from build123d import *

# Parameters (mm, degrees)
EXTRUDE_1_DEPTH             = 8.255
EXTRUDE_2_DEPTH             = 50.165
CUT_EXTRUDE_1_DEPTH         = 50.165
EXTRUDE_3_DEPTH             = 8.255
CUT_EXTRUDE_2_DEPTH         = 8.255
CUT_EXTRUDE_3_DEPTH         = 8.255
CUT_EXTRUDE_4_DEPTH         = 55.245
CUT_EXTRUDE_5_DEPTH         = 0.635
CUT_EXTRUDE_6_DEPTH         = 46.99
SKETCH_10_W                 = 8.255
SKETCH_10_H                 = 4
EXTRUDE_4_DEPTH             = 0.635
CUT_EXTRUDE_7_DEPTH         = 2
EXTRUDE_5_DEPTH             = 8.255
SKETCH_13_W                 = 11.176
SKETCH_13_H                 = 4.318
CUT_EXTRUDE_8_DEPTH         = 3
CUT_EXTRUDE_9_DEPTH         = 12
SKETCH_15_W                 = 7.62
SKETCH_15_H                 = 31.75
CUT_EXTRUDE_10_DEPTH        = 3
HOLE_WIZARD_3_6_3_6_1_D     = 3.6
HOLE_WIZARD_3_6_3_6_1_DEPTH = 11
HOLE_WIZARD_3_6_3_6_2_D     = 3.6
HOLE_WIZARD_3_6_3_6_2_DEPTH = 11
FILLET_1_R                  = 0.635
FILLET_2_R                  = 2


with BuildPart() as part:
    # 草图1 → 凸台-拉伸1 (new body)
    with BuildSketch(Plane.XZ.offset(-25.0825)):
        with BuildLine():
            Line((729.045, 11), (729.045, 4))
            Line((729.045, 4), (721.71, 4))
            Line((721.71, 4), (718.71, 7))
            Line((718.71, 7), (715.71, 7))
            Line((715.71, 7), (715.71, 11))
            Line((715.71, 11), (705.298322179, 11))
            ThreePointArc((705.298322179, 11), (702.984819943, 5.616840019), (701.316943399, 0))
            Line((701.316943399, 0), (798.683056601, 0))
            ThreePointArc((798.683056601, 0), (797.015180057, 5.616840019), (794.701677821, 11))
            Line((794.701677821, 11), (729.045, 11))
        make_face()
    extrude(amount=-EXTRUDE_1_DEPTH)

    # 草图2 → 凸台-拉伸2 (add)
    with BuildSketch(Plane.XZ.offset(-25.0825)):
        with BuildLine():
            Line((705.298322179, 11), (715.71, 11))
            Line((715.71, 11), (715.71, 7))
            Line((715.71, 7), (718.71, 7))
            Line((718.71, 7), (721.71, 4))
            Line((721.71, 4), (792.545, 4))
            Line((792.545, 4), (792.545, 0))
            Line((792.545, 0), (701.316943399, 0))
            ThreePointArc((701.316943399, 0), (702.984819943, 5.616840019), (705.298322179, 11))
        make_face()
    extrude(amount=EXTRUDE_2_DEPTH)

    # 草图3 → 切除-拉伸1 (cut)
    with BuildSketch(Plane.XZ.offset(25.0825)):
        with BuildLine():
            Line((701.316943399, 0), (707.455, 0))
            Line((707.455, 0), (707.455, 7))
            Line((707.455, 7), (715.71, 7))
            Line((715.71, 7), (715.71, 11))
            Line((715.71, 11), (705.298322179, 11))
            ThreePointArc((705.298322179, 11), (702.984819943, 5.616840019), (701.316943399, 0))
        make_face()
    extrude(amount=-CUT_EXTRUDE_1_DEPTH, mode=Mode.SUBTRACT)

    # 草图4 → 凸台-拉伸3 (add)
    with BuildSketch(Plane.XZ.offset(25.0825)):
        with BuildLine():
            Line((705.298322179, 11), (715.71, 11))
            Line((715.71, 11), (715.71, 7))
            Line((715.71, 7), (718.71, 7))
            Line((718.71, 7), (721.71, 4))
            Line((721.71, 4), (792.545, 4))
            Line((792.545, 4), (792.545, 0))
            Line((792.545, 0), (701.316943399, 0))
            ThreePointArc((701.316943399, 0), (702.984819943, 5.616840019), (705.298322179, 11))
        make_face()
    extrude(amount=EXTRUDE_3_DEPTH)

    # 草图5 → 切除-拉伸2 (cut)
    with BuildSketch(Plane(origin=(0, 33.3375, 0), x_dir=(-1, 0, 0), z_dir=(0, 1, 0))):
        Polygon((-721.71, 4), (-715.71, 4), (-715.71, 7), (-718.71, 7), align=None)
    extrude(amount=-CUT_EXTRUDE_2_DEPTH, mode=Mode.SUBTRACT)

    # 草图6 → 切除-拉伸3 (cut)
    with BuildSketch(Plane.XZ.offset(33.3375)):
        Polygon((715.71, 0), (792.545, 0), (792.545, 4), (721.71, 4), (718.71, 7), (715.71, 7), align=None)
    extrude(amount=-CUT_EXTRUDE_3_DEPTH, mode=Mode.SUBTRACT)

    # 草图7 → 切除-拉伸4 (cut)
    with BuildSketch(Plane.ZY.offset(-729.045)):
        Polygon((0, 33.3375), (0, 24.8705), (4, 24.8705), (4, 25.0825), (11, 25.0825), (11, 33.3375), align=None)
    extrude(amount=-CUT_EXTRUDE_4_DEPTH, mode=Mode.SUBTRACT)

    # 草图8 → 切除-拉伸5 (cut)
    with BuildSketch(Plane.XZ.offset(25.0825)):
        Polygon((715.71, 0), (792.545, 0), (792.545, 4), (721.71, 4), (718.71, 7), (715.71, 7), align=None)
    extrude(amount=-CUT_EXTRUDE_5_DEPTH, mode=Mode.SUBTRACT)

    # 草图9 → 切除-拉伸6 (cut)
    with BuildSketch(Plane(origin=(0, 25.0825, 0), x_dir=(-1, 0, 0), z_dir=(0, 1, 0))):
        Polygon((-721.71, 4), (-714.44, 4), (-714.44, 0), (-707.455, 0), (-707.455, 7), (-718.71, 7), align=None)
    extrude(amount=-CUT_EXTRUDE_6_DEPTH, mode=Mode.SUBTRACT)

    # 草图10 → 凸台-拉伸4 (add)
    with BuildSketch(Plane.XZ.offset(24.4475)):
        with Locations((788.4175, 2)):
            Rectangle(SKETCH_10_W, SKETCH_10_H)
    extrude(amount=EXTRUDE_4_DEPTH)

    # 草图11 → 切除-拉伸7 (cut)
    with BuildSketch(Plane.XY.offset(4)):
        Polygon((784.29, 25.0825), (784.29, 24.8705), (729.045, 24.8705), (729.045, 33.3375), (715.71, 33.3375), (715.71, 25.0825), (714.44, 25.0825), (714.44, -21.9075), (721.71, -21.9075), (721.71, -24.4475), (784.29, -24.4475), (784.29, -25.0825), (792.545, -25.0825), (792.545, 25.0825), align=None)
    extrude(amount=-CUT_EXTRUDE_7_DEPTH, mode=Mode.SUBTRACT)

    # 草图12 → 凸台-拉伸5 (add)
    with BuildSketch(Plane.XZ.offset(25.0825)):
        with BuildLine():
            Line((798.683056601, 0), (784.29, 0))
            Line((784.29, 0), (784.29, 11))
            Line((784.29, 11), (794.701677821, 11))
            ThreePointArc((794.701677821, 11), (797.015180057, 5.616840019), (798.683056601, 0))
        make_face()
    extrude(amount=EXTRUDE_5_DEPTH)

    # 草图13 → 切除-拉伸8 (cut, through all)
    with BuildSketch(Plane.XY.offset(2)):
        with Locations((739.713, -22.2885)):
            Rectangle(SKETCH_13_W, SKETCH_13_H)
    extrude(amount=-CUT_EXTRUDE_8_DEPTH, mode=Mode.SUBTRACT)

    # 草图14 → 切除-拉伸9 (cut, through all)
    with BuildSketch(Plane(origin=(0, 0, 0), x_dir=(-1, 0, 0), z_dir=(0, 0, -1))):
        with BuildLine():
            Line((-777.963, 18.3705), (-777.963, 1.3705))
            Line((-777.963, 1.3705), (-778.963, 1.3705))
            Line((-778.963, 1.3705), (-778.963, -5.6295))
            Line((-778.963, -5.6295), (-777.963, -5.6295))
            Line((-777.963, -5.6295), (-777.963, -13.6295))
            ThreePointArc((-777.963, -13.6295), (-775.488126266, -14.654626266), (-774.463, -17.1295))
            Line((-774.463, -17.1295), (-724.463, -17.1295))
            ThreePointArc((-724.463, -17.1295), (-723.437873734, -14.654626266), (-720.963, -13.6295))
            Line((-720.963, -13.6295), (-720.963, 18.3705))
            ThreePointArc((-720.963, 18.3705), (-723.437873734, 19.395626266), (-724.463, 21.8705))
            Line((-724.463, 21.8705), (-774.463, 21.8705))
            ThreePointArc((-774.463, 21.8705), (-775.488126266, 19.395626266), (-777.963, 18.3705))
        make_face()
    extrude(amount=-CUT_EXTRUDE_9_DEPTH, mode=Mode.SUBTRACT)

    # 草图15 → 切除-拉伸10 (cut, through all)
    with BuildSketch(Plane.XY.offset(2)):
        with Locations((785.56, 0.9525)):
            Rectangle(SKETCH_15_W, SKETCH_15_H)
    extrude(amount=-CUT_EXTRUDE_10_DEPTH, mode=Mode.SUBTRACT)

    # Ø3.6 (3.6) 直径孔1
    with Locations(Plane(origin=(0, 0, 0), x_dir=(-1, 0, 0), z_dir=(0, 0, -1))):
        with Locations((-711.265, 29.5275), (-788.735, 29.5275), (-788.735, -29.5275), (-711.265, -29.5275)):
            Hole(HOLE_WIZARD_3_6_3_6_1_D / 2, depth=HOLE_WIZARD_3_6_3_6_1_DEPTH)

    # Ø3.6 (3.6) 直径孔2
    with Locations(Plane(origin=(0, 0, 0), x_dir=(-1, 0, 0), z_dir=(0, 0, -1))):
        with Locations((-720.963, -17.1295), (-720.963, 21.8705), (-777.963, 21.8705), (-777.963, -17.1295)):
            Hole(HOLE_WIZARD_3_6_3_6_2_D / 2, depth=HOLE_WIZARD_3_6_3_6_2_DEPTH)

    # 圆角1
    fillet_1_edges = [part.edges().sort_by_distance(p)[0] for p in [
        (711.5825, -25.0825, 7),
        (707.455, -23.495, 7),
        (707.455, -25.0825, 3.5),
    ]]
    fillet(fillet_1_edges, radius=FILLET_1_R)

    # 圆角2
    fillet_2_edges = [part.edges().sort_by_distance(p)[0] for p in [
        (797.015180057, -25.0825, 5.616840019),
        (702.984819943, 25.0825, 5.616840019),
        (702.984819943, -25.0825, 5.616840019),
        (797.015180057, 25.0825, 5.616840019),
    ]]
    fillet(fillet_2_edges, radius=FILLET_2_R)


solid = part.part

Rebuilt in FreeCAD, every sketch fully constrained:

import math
import FreeCAD as App
import Part
import Sketcher
Q = App.Units.Quantity


def edges_at(feature, points):
    """Names of the edges that pass closest to the given points."""
    edges = feature.Shape.Edges
    near = lambda p: min(range(len(edges)), key=lambda i: edges[i].distToShape(Part.Vertex(*p))[0])
    return sorted({f"Edge{near(p) + 1}" for p in points})


def add_polygon(sketch, points):
    """Adds a closed chain of lines whose ends are joined by coincident constraints."""
    first, n = sketch.GeometryCount, len(points)
    for a, b in zip(points, points[1:] + points[:1]):
        sketch.addGeometry(Part.LineSegment(App.Vector(*a, 0), App.Vector(*b, 0)), False)
    for i in range(n):
        sketch.addConstraint(Sketcher.Constraint("Coincident", first + i, 2, first + (i + 1) % n, 1))

doc = App.newDocument("Part")
body = doc.addObject("PartDesign::Body", "Body")

sketch1 = body.newObject("Sketcher::SketchObject", "Sketch")
sketch1.AttachmentSupport = (doc.getObject("XZ_Plane"), [""])
sketch1.MapMode = "FlatFace"
sketch1.AttachmentOffset = App.Placement(App.Vector(0, 0, -25.0825), App.Rotation())
sketch1.addGeometry(Part.LineSegment(App.Vector(729, 11, 0), App.Vector(729, 4, 0)), False)
sketch1.addGeometry(Part.LineSegment(App.Vector(729, 4, 0), App.Vector(721.7, 4, 0)), False)
sketch1.addGeometry(Part.LineSegment(App.Vector(721.7, 4, 0), App.Vector(718.7, 7, 0)), False)
sketch1.addGeometry(Part.LineSegment(App.Vector(718.7, 7, 0), App.Vector(715.7, 7, 0)), False)
sketch1.addGeometry(Part.LineSegment(App.Vector(715.7, 7, 0), App.Vector(715.7, 11, 0)), False)
sketch1.addGeometry(Part.LineSegment(App.Vector(715.7, 11, 0), App.Vector(705.3, 11, 0)), False)
sketch1.addGeometry(Part.ArcOfCircle(Part.Circle(App.Vector(750, -11.4, 0), App.Vector(0, 0, 1), 50), math.radians(153.38), math.radians(166.82)), False)
sketch1.addGeometry(Part.LineSegment(App.Vector(701.3, 0, 0), App.Vector(798.7, 0, 0)), False)
sketch1.addGeometry(Part.ArcOfCircle(Part.Circle(App.Vector(750, -11.4, 0), App.Vector(0, 0, 1), 50), math.radians(13.18), math.radians(26.62)), False)
sketch1.addGeometry(Part.LineSegment(App.Vector(794.7, 11, 0), App.Vector(729, 11, 0)), False)
sketch1.addConstraint(Sketcher.Constraint("Coincident", 0, 2, 1, 1))
sketch1.addConstraint(Sketcher.Constraint("Coincident", 1, 2, 2, 1))
sketch1.addConstraint(Sketcher.Constraint("Coincident", 2, 2, 3, 1))
sketch1.addConstraint(Sketcher.Constraint("Coincident", 3, 2, 4, 1))
sketch1.addConstraint(Sketcher.Constraint("Coincident", 4, 2, 5, 1))
sketch1.addConstraint(Sketcher.Constraint("Coincident", 5, 2, 6, 1))
sketch1.addConstraint(Sketcher.Constraint("Coincident", 6, 2, 7, 1))
sketch1.addConstraint(Sketcher.Constraint("Coincident", 7, 2, 8, 1))
sketch1.addConstraint(Sketcher.Constraint("Coincident", 8, 2, 9, 1))
sketch1.addConstraint(Sketcher.Constraint("Coincident", 9, 2, 0, 1))
sketch1.addConstraint(Sketcher.Constraint("Vertical", 0))
sketch1.addConstraint(Sketcher.Constraint("Horizontal", 1))
sketch1.addConstraint(Sketcher.Constraint("Horizontal", 3))
sketch1.addConstraint(Sketcher.Constraint("Vertical", 4))
sketch1.addConstraint(Sketcher.Constraint("Horizontal", 5))
sketch1.addConstraint(Sketcher.Constraint("Horizontal", 7))
sketch1.addConstraint(Sketcher.Constraint("Horizontal", 9))
sketch1.addConstraint(Sketcher.Constraint("Coincident", 8, 3, 6, 3))
sketch1.addConstraint(Sketcher.Constraint("Equal", 6, 8))
sketch1.addConstraint(Sketcher.Constraint("PointOnObject", 6, 2, -1))
sketch1.addConstraint(Sketcher.Constraint("Horizontal", 5, 2, 8, 2))
sketch1.addConstraint(Sketcher.Constraint("Radius", 6, Q("50 mm")))
sketch1.addConstraint(Sketcher.Constraint("DistanceX", 3, 2, 3, 1, Q("3 mm")))
sketch1.addConstraint(Sketcher.Constraint("DistanceY", 0, 2, 0, 1, Q("7 mm")))
sketch1.addConstraint(Sketcher.Constraint("DistanceY", 4, 1, 4, 2, Q("4 mm")))
sketch1.addConstraint(Sketcher.Constraint("Angle", 2, Q("135 deg")))
sketch1.addConstraint(Sketcher.Constraint("DistanceX", -1, 1, 6, 3, Q("750 mm")))
sketch1.addConstraint(Sketcher.Constraint("DistanceY", -1, 1, 0, 2, Q("4 mm")))
sketch1.addConstraint(Sketcher.Constraint("DistanceY", 6, 3, -1, 1, Q("11.4 mm")))
sketch1.addConstraint(Sketcher.Constraint("DistanceX", 1, 2, 1, 1, Q("7.335 mm")))
sketch1.addConstraint(Sketcher.Constraint("DistanceX", -1, 1, 1, 2, Q("721.71 mm")))
pad1 = body.newObject("PartDesign::Pad", "Pad")
pad1.Profile = sketch1
pad1.Length = 8.255
pad1.Reversed = True

sketch2 = body.newObject("Sketcher::SketchObject", "Sketch001")
sketch2.AttachmentSupport = (doc.getObject("XZ_Plane"), [""])
sketch2.MapMode = "FlatFace"
sketch2.AttachmentOffset = App.Placement(App.Vector(0, 0, -25.0825), App.Rotation())
sketch2.addGeometry(Part.LineSegment(App.Vector(715.7, 11, 0), App.Vector(705.3, 11, 0)), False)
sketch2.addGeometry(Part.ArcOfCircle(Part.Circle(App.Vector(750, -11.4, 0), App.Vector(0, 0, 1), 50), math.radians(153.38), math.radians(166.82)), False)
sketch2.addGeometry(Part.LineSegment(App.Vector(701.3, 0, 0), App.Vector(792.5, 0, 0)), False)
sketch2.addGeometry(Part.LineSegment(App.Vector(792.5, 0, 0), App.Vector(792.5, 4, 0)), False)
sketch2.addGeometry(Part.LineSegment(App.Vector(792.5, 4, 0), App.Vector(721.7, 4, 0)), False)
sketch2.addGeometry(Part.LineSegment(App.Vector(721.7, 4, 0), App.Vector(718.7, 7, 0)), False)
sketch2.addGeometry(Part.LineSegment(App.Vector(718.7, 7, 0), App.Vector(715.7, 7, 0)), False)
sketch2.addGeometry(Part.LineSegment(App.Vector(715.7, 7, 0), App.Vector(715.7, 11, 0)), False)
sketch2.addConstraint(Sketcher.Constraint("Coincident", 0, 2, 1, 1))
sketch2.addConstraint(Sketcher.Constraint("Coincident", 1, 2, 2, 1))
sketch2.addConstraint(Sketcher.Constraint("Coincident", 2, 2, 3, 1))
sketch2.addConstraint(Sketcher.Constraint("Coincident", 3, 2, 4, 1))
sketch2.addConstraint(Sketcher.Constraint("Coincident", 4, 2, 5, 1))
sketch2.addConstraint(Sketcher.Constraint("Coincident", 5, 2, 6, 1))
sketch2.addConstraint(Sketcher.Constraint("Coincident", 6, 2, 7, 1))
sketch2.addConstraint(Sketcher.Constraint("Coincident", 7, 2, 0, 1))
sketch2.addConstraint(Sketcher.Constraint("Horizontal", 0))
sketch2.addConstraint(Sketcher.Constraint("Horizontal", 2))
sketch2.addConstraint(Sketcher.Constraint("Vertical", 3))
sketch2.addConstraint(Sketcher.Constraint("Horizontal", 4))
sketch2.addConstraint(Sketcher.Constraint("Horizontal", 6))
sketch2.addConstraint(Sketcher.Constraint("Vertical", 7))
sketch2.addConstraint(Sketcher.Constraint("PointOnObject", 1, 2, -1))
sketch2.addConstraint(Sketcher.Constraint("Equal", 3, 7))
sketch2.addConstraint(Sketcher.Constraint("Radius", 1, Q("50 mm")))
sketch2.addConstraint(Sketcher.Constraint("DistanceX", 6, 2, 6, 1, Q("3 mm")))
sketch2.addConstraint(Sketcher.Constraint("DistanceY", 3, 1, 3, 2, Q("4 mm")))
sketch2.addConstraint(Sketcher.Constraint("Angle", 5, Q("135 deg")))
sketch2.addConstraint(Sketcher.Constraint("DistanceX", -1, 1, 1, 3, Q("750 mm")))
sketch2.addConstraint(Sketcher.Constraint("DistanceY", -1, 1, 0, 2, Q("11 mm")))
sketch2.addConstraint(Sketcher.Constraint("DistanceY", 1, 3, -1, 1, Q("11.4 mm")))
sketch2.addConstraint(Sketcher.Constraint("DistanceX", 4, 2, 4, 1, Q("70.835 mm")))
sketch2.addConstraint(Sketcher.Constraint("DistanceX", -1, 1, 4, 2, Q("721.71 mm")))
pad2 = body.newObject("PartDesign::Pad", "Pad001")
pad2.Profile = sketch2
pad2.Length = 50.165

sketch3 = body.newObject("Sketcher::SketchObject", "Sketch002")
sketch3.AttachmentSupport = (doc.getObject("XZ_Plane"), [""])
sketch3.MapMode = "FlatFace"
sketch3.AttachmentOffset = App.Placement(App.Vector(0, 0, 25.0825), App.Rotation())
sketch3.addGeometry(Part.LineSegment(App.Vector(701.3, 0, 0), App.Vector(707.5, 0, 0)), False)
sketch3.addGeometry(Part.LineSegment(App.Vector(707.5, 0, 0), App.Vector(707.5, 7, 0)), False)
sketch3.addGeometry(Part.LineSegment(App.Vector(707.5, 7, 0), App.Vector(715.7, 7, 0)), False)
sketch3.addGeometry(Part.LineSegment(App.Vector(715.7, 7, 0), App.Vector(715.7, 11, 0)), False)
sketch3.addGeometry(Part.LineSegment(App.Vector(715.7, 11, 0), App.Vector(705.3, 11, 0)), False)
sketch3.addGeometry(Part.ArcOfCircle(Part.Circle(App.Vector(750, -11.4, 0), App.Vector(0, 0, 1), 50), math.radians(153.38), math.radians(166.82)), False)
sketch3.addConstraint(Sketcher.Constraint("Coincident", 0, 2, 1, 1))
sketch3.addConstraint(Sketcher.Constraint("Coincident", 1, 2, 2, 1))
sketch3.addConstraint(Sketcher.Constraint("Coincident", 2, 2, 3, 1))
sketch3.addConstraint(Sketcher.Constraint("Coincident", 3, 2, 4, 1))
sketch3.addConstraint(Sketcher.Constraint("Coincident", 4, 2, 5, 1))
sketch3.addConstraint(Sketcher.Constraint("Coincident", 5, 2, 0, 1))
sketch3.addConstraint(Sketcher.Constraint("Horizontal", 0))
sketch3.addConstraint(Sketcher.Constraint("Vertical", 1))
sketch3.addConstraint(Sketcher.Constraint("Horizontal", 2))
sketch3.addConstraint(Sketcher.Constraint("Vertical", 3))
sketch3.addConstraint(Sketcher.Constraint("Horizontal", 4))
sketch3.addConstraint(Sketcher.Constraint("PointOnObject", 0, 2, -1))
sketch3.addConstraint(Sketcher.Constraint("Radius", 5, Q("50 mm")))
sketch3.addConstraint(Sketcher.Constraint("DistanceY", 1, 1, 1, 2, Q("7 mm")))
sketch3.addConstraint(Sketcher.Constraint("DistanceY", 3, 1, 3, 2, Q("4 mm")))
sketch3.addConstraint(Sketcher.Constraint("DistanceX", -1, 1, 5, 3, Q("750 mm")))
sketch3.addConstraint(Sketcher.Constraint("DistanceY", 5, 3, -1, 1, Q("11.4 mm")))
sketch3.addConstraint(Sketcher.Constraint("DistanceX", 2, 1, 2, 2, Q("8.255 mm")))
sketch3.addConstraint(Sketcher.Constraint("DistanceX", -1, 1, 2, 2, Q("715.71 mm")))
pocket1 = body.newObject("PartDesign::Pocket", "Pocket")
pocket1.Profile = sketch3
pocket1.Length = 50.165

sketch4 = body.newObject("Sketcher::SketchObject", "Sketch003")
sketch4.AttachmentSupport = (doc.getObject("XZ_Plane"), [""])
sketch4.MapMode = "FlatFace"
sketch4.AttachmentOffset = App.Placement(App.Vector(0, 0, 25.0825), App.Rotation())
sketch4.addGeometry(Part.LineSegment(App.Vector(715.7, 11, 0), App.Vector(705.3, 11, 0)), False)
sketch4.addGeometry(Part.ArcOfCircle(Part.Circle(App.Vector(750, -11.4, 0), App.Vector(0, 0, 1), 50), math.radians(153.38), math.radians(166.82)), False)
sketch4.addGeometry(Part.LineSegment(App.Vector(701.3, 0, 0), App.Vector(792.5, 0, 0)), False)
sketch4.addGeometry(Part.LineSegment(App.Vector(792.5, 0, 0), App.Vector(792.5, 4, 0)), False)
sketch4.addGeometry(Part.LineSegment(App.Vector(792.5, 4, 0), App.Vector(721.7, 4, 0)), False)
sketch4.addGeometry(Part.LineSegment(App.Vector(721.7, 4, 0), App.Vector(718.7, 7, 0)), False)
sketch4.addGeometry(Part.LineSegment(App.Vector(718.7, 7, 0), App.Vector(715.7, 7, 0)), False)
sketch4.addGeometry(Part.LineSegment(App.Vector(715.7, 7, 0), App.Vector(715.7, 11, 0)), False)
sketch4.addConstraint(Sketcher.Constraint("Coincident", 0, 2, 1, 1))
sketch4.addConstraint(Sketcher.Constraint("Coincident", 1, 2, 2, 1))
sketch4.addConstraint(Sketcher.Constraint("Coincident", 2, 2, 3, 1))
sketch4.addConstraint(Sketcher.Constraint("Coincident", 3, 2, 4, 1))
sketch4.addConstraint(Sketcher.Constraint("Coincident", 4, 2, 5, 1))
sketch4.addConstraint(Sketcher.Constraint("Coincident", 5, 2, 6, 1))
sketch4.addConstraint(Sketcher.Constraint("Coincident", 6, 2, 7, 1))
sketch4.addConstraint(Sketcher.Constraint("Coincident", 7, 2, 0, 1))
sketch4.addConstraint(Sketcher.Constraint("Horizontal", 0))
sketch4.addConstraint(Sketcher.Constraint("Horizontal", 2))
sketch4.addConstraint(Sketcher.Constraint("Vertical", 3))
sketch4.addConstraint(Sketcher.Constraint("Horizontal", 4))
sketch4.addConstraint(Sketcher.Constraint("Horizontal", 6))
sketch4.addConstraint(Sketcher.Constraint("Vertical", 7))
sketch4.addConstraint(Sketcher.Constraint("PointOnObject", 1, 2, -1))
sketch4.addConstraint(Sketcher.Constraint("Equal", 3, 7))
sketch4.addConstraint(Sketcher.Constraint("Radius", 1, Q("50 mm")))
sketch4.addConstraint(Sketcher.Constraint("DistanceX", 6, 2, 6, 1, Q("3 mm")))
sketch4.addConstraint(Sketcher.Constraint("DistanceY", 3, 1, 3, 2, Q("4 mm")))
sketch4.addConstraint(Sketcher.Constraint("Angle", 5, Q("135 deg")))
sketch4.addConstraint(Sketcher.Constraint("DistanceX", -1, 1, 1, 3, Q("750 mm")))
sketch4.addConstraint(Sketcher.Constraint("DistanceY", -1, 1, 0, 2, Q("11 mm")))
sketch4.addConstraint(Sketcher.Constraint("DistanceY", 1, 3, -1, 1, Q("11.4 mm")))
sketch4.addConstraint(Sketcher.Constraint("DistanceX", 4, 2, 4, 1, Q("70.835 mm")))
sketch4.addConstraint(Sketcher.Constraint("DistanceX", -1, 1, 4, 2, Q("721.71 mm")))
pad3 = body.newObject("PartDesign::Pad", "Pad002")
pad3.Profile = sketch4
pad3.Length = 8.255

sketch5 = body.newObject("Sketcher::SketchObject", "Sketch004")
sketch5.AttachmentSupport = (doc.getObject("XZ_Plane"), [""])
sketch5.MapMode = "FlatFace"
sketch5.AttachmentOffset = App.Placement(App.Vector(0, 0, -33.3375), App.Rotation())
add_polygon(sketch5, [(721.7, 4), (715.7, 4), (715.7, 7), (718.7, 7)])
sketch5.addConstraint(Sketcher.Constraint("Horizontal", 0))
sketch5.addConstraint(Sketcher.Constraint("Vertical", 1))
sketch5.addConstraint(Sketcher.Constraint("Horizontal", 2))
sketch5.addConstraint(Sketcher.Constraint("Equal", 2, 1))
sketch5.addConstraint(Sketcher.Constraint("DistanceX", 0, 2, 0, 1, Q("6 mm")))
sketch5.addConstraint(Sketcher.Constraint("DistanceX", 2, 1, 2, 2, Q("3 mm")))
sketch5.addConstraint(Sketcher.Constraint("DistanceY", -1, 1, 0, 2, Q("4 mm")))
sketch5.addConstraint(Sketcher.Constraint("DistanceX", -1, 1, 0, 2, Q("715.71 mm")))
pocket2 = body.newObject("PartDesign::Pocket", "Pocket001")
pocket2.Profile = sketch5
pocket2.Length = 8.255
pocket2.Reversed = True

sketch6 = body.newObject("Sketcher::SketchObject", "Sketch005")
sketch6.AttachmentSupport = (doc.getObject("XZ_Plane"), [""])
sketch6.MapMode = "FlatFace"
sketch6.AttachmentOffset = App.Placement(App.Vector(0, 0, 33.3375), App.Rotation())
add_polygon(sketch6, [(715.7, 0), (792.5, 0), (792.5, 4), (721.7, 4), (718.7, 7), (715.7, 7)])
sketch6.addConstraint(Sketcher.Constraint("Horizontal", 0))
sketch6.addConstraint(Sketcher.Constraint("Vertical", 1))
sketch6.addConstraint(Sketcher.Constraint("Horizontal", 2))
sketch6.addConstraint(Sketcher.Constraint("Horizontal", 4))
sketch6.addConstraint(Sketcher.Constraint("Vertical", 5))
sketch6.addConstraint(Sketcher.Constraint("PointOnObject", 0, 2, -1))
sketch6.addConstraint(Sketcher.Constraint("DistanceX", 4, 2, 4, 1, Q("3 mm")))
sketch6.addConstraint(Sketcher.Constraint("DistanceY", 1, 1, 1, 2, Q("4 mm")))
sketch6.addConstraint(Sketcher.Constraint("DistanceY", 5, 2, 5, 1, Q("7 mm")))
sketch6.addConstraint(Sketcher.Constraint("Angle", 3, Q("135 deg")))
sketch6.addConstraint(Sketcher.Constraint("DistanceX", 0, 1, 0, 2, Q("76.835 mm")))
sketch6.addConstraint(Sketcher.Constraint("DistanceX", -1, 1, 2, 2, Q("721.71 mm")))
pocket3 = body.newObject("PartDesign::Pocket", "Pocket002")
pocket3.Profile = sketch6
pocket3.Length = 8.255

sketch7 = body.newObject("Sketcher::SketchObject", "Sketch006")
sketch7.AttachmentSupport = (doc.getObject("YZ_Plane"), [""])
sketch7.MapMode = "FlatFace"
sketch7.AttachmentOffset = App.Placement(App.Vector(0, 0, 729.045), App.Rotation())
add_polygon(sketch7, [(33.34, 0), (24.87, 0), (24.87, 4), (25.08, 4), (25.08, 11), (33.34, 11)])
sketch7.addConstraint(Sketcher.Constraint("Horizontal", 0))
sketch7.addConstraint(Sketcher.Constraint("Vertical", 1))
sketch7.addConstraint(Sketcher.Constraint("Horizontal", 2))
sketch7.addConstraint(Sketcher.Constraint("Vertical", 3))
sketch7.addConstraint(Sketcher.Constraint("Horizontal", 4))
sketch7.addConstraint(Sketcher.Constraint("Vertical", 5))
sketch7.addConstraint(Sketcher.Constraint("PointOnObject", 0, 2, -1))
sketch7.addConstraint(Sketcher.Constraint("DistanceY", 1, 1, 1, 2, Q("4 mm")))
sketch7.addConstraint(Sketcher.Constraint("DistanceY", 3, 1, 3, 2, Q("7 mm")))
sketch7.addConstraint(Sketcher.Constraint("DistanceX", 0, 2, 0, 1, Q("8.467 mm")))
sketch7.addConstraint(Sketcher.Constraint("DistanceX", 2, 1, 2, 2, Q("0.212 mm")))
sketch7.addConstraint(Sketcher.Constraint("DistanceX", -1, 1, 0, 2, Q("24.8705 mm")))
pocket4 = body.newObject("PartDesign::Pocket", "Pocket003")
pocket4.Profile = sketch7
pocket4.Length = 55.245
pocket4.Reversed = True

sketch8 = body.newObject("Sketcher::SketchObject", "Sketch007")
sketch8.AttachmentSupport = (doc.getObject("XZ_Plane"), [""])
sketch8.MapMode = "FlatFace"
sketch8.AttachmentOffset = App.Placement(App.Vector(0, 0, 25.0825), App.Rotation())
add_polygon(sketch8, [(715.7, 0), (792.5, 0), (792.5, 4), (721.7, 4), (718.7, 7), (715.7, 7)])
sketch8.addConstraint(Sketcher.Constraint("Horizontal", 0))
sketch8.addConstraint(Sketcher.Constraint("Vertical", 1))
sketch8.addConstraint(Sketcher.Constraint("Horizontal", 2))
sketch8.addConstraint(Sketcher.Constraint("Horizontal", 4))
sketch8.addConstraint(Sketcher.Constraint("Vertical", 5))
sketch8.addConstraint(Sketcher.Constraint("PointOnObject", 0, 2, -1))
sketch8.addConstraint(Sketcher.Constraint("DistanceX", 4, 2, 4, 1, Q("3 mm")))
sketch8.addConstraint(Sketcher.Constraint("DistanceY", 1, 1, 1, 2, Q("4 mm")))
sketch8.addConstraint(Sketcher.Constraint("DistanceY", 5, 2, 5, 1, Q("7 mm")))
sketch8.addConstraint(Sketcher.Constraint("Angle", 3, Q("135 deg")))
sketch8.addConstraint(Sketcher.Constraint("DistanceX", 0, 1, 0, 2, Q("76.835 mm")))
sketch8.addConstraint(Sketcher.Constraint("DistanceX", -1, 1, 2, 2, Q("721.71 mm")))
pocket5 = body.newObject("PartDesign::Pocket", "Pocket004")
pocket5.Profile = sketch8
pocket5.Length = 0.635

sketch9 = body.newObject("Sketcher::SketchObject", "Sketch008")
sketch9.AttachmentSupport = (doc.getObject("XZ_Plane"), [""])
sketch9.MapMode = "FlatFace"
sketch9.AttachmentOffset = App.Placement(App.Vector(0, 0, -25.0825), App.Rotation())
add_polygon(sketch9, [(721.7, 4), (714.4, 4), (714.4, 0), (707.5, 0), (707.5, 7), (718.7, 7)])
sketch9.addConstraint(Sketcher.Constraint("Horizontal", 0))
sketch9.addConstraint(Sketcher.Constraint("Vertical", 1))
sketch9.addConstraint(Sketcher.Constraint("Horizontal", 2))
sketch9.addConstraint(Sketcher.Constraint("Vertical", 3))
sketch9.addConstraint(Sketcher.Constraint("Horizontal", 4))
sketch9.addConstraint(Sketcher.Constraint("PointOnObject", 1, 2, -1))
sketch9.addConstraint(Sketcher.Constraint("DistanceY", 1, 2, 1, 1, Q("4 mm")))
sketch9.addConstraint(Sketcher.Constraint("DistanceY", 3, 1, 3, 2, Q("7 mm")))
sketch9.addConstraint(Sketcher.Constraint("Angle", 5, Q("-45 deg")))
sketch9.addConstraint(Sketcher.Constraint("DistanceX", 0, 2, 0, 1, Q("7.27 mm")))
sketch9.addConstraint(Sketcher.Constraint("DistanceX", 2, 2, 2, 1, Q("6.985 mm")))
sketch9.addConstraint(Sketcher.Constraint("DistanceX", -1, 1, 0, 2, Q("714.44 mm")))
pocket6 = body.newObject("PartDesign::Pocket", "Pocket005")
pocket6.Profile = sketch9
pocket6.Length = 46.99
pocket6.Reversed = True

sketch10 = body.newObject("Sketcher::SketchObject", "Sketch009")
sketch10.AttachmentSupport = (doc.getObject("XZ_Plane"), [""])
sketch10.MapMode = "FlatFace"
sketch10.AttachmentOffset = App.Placement(App.Vector(0, 0, 24.4475), App.Rotation())
add_polygon(sketch10, [(784.3, 4), (784.3, 0), (792.5, 0), (792.5, 4)])
sketch10.addConstraint(Sketcher.Constraint("Vertical", 0))
sketch10.addConstraint(Sketcher.Constraint("Horizontal", 1))
sketch10.addConstraint(Sketcher.Constraint("Vertical", 2))
sketch10.addConstraint(Sketcher.Constraint("Horizontal", 3))
sketch10.addConstraint(Sketcher.Constraint("PointOnObject", 0, 2, -1))
sketch10.addConstraint(Sketcher.Constraint("DistanceY", 0, 2, 0, 1, Q("4 mm")))
sketch10.addConstraint(Sketcher.Constraint("DistanceX", 1, 1, 1, 2, Q("8.255 mm")))
sketch10.addConstraint(Sketcher.Constraint("DistanceX", -1, 1, 0, 2, Q("784.29 mm")))
pad4 = body.newObject("PartDesign::Pad", "Pad003")
pad4.Profile = sketch10
pad4.Length = 0.635

sketch11 = body.newObject("Sketcher::SketchObject", "Sketch010")
sketch11.AttachmentSupport = (doc.getObject("XY_Plane"), [""])
sketch11.MapMode = "FlatFace"
sketch11.AttachmentOffset = App.Placement(App.Vector(0, 0, 4), App.Rotation())
add_polygon(sketch11, [(784.29, 25.08), (784.29, 24.87), (729.04, 24.87), (729.04, 33.34), (715.71, 33.34), (715.71, 25.08), (714.44, 25.08), (714.44, -21.91), (721.71, -21.91), (721.71, -24.45), (784.29, -24.45), (784.29, -25.08), (792.54, -25.08), (792.54, 25.08)])
sketch11.addConstraint(Sketcher.Constraint("Vertical", 0))
sketch11.addConstraint(Sketcher.Constraint("Horizontal", 1))
sketch11.addConstraint(Sketcher.Constraint("Vertical", 2))
sketch11.addConstraint(Sketcher.Constraint("Horizontal", 3))
sketch11.addConstraint(Sketcher.Constraint("Vertical", 4))
sketch11.addConstraint(Sketcher.Constraint("Horizontal", 5))
sketch11.addConstraint(Sketcher.Constraint("Vertical", 6))
sketch11.addConstraint(Sketcher.Constraint("Horizontal", 7))
sketch11.addConstraint(Sketcher.Constraint("Vertical", 8))
sketch11.addConstraint(Sketcher.Constraint("Horizontal", 9))
sketch11.addConstraint(Sketcher.Constraint("Vertical", 10))
sketch11.addConstraint(Sketcher.Constraint("Horizontal", 11))
sketch11.addConstraint(Sketcher.Constraint("Vertical", 12))
sketch11.addConstraint(Sketcher.Constraint("Horizontal", 13))
sketch11.addConstraint(Sketcher.Constraint("Symmetric", 10, 2, 13, 2, -1))
sketch11.addConstraint(Sketcher.Constraint("Horizontal", 5, 2, 12, 2))
sketch11.addConstraint(Sketcher.Constraint("Equal", 13, 4))
sketch11.addConstraint(Sketcher.Constraint("DistanceX", 4, 2, 7, 2, Q("6 mm")))
sketch11.addConstraint(Sketcher.Constraint("DistanceX", 5, 2, 5, 1, Q("1.27 mm")))
sketch11.addConstraint(Sketcher.Constraint("DistanceX", 9, 1, 9, 2, Q("62.58 mm")))
sketch11.addConstraint(Sketcher.Constraint("DistanceY", 6, 2, 6, 1, Q("46.99 mm")))
sketch11.addConstraint(Sketcher.Constraint("DistanceY", 8, 2, 8, 1, Q("2.54 mm")))
sketch11.addConstraint(Sketcher.Constraint("DistanceX", 1, 2, 12, 2, Q("63.5 mm")))
sketch11.addConstraint(Sketcher.Constraint("DistanceX", 1, 2, 1, 1, Q("55.245 mm")))
sketch11.addConstraint(Sketcher.Constraint("DistanceY", 0, 2, 0, 1, Q("0.212 mm")))
sketch11.addConstraint(Sketcher.Constraint("DistanceY", 10, 2, 10, 1, Q("0.635 mm")))
sketch11.addConstraint(Sketcher.Constraint("DistanceX", -1, 1, 0, 2, Q("784.29 mm")))
pocket7 = body.newObject("PartDesign::Pocket", "Pocket006")
pocket7.Profile = sketch11
pocket7.Length = 2

sketch12 = body.newObject("Sketcher::SketchObject", "Sketch011")
sketch12.AttachmentSupport = (doc.getObject("XZ_Plane"), [""])
sketch12.MapMode = "FlatFace"
sketch12.AttachmentOffset = App.Placement(App.Vector(0, 0, 25.0825), App.Rotation())
sketch12.addGeometry(Part.LineSegment(App.Vector(784, 0, 0), App.Vector(799, 0, 0)), False)
sketch12.addGeometry(Part.ArcOfCircle(Part.Circle(App.Vector(750, -11, 0), App.Vector(0, 0, 1), 50), math.radians(13.18), math.radians(26.62)), False)
sketch12.addGeometry(Part.LineSegment(App.Vector(795, 11, 0), App.Vector(784, 11, 0)), False)
sketch12.addGeometry(Part.LineSegment(App.Vector(784, 11, 0), App.Vector(784, 0, 0)), False)
sketch12.addConstraint(Sketcher.Constraint("Coincident", 0, 2, 1, 1))
sketch12.addConstraint(Sketcher.Constraint("Coincident", 1, 2, 2, 1))
sketch12.addConstraint(Sketcher.Constraint("Coincident", 2, 2, 3, 1))
sketch12.addConstraint(Sketcher.Constraint("Coincident", 3, 2, 0, 1))
sketch12.addConstraint(Sketcher.Constraint("Horizontal", 0))
sketch12.addConstraint(Sketcher.Constraint("Horizontal", 2))
sketch12.addConstraint(Sketcher.Constraint("Vertical", 3))
sketch12.addConstraint(Sketcher.Constraint("PointOnObject", 0, 2, -1))
sketch12.addConstraint(Sketcher.Constraint("Radius", 1, Q("50 mm")))
sketch12.addConstraint(Sketcher.Constraint("DistanceY", 3, 2, 3, 1, Q("11 mm")))
sketch12.addConstraint(Sketcher.Constraint("DistanceX", -1, 1, 1, 3, Q("750 mm")))
sketch12.addConstraint(Sketcher.Constraint("DistanceY", 1, 3, -1, 1, Q("11.4 mm")))
sketch12.addConstraint(Sketcher.Constraint("DistanceX", -1, 1, 2, 2, Q("784.29 mm")))
pad5 = body.newObject("PartDesign::Pad", "Pad004")
pad5.Profile = sketch12
pad5.Length = 8.255

sketch13 = body.newObject("Sketcher::SketchObject", "Sketch012")
sketch13.AttachmentSupport = (doc.getObject("XY_Plane"), [""])
sketch13.MapMode = "FlatFace"
sketch13.AttachmentOffset = App.Placement(App.Vector(0, 0, 2), App.Rotation())
add_polygon(sketch13, [(734.1, -20.1), (734.1, -24.4), (745.3, -24.4), (745.3, -20.1)])
sketch13.addConstraint(Sketcher.Constraint("Vertical", 0))
sketch13.addConstraint(Sketcher.Constraint("Horizontal", 1))
sketch13.addConstraint(Sketcher.Constraint("Vertical", 2))
sketch13.addConstraint(Sketcher.Constraint("Horizontal", 3))
sketch13.addConstraint(Sketcher.Constraint("DistanceX", 1, 1, 1, 2, Q("11.176 mm")))
sketch13.addConstraint(Sketcher.Constraint("DistanceY", 0, 2, 0, 1, Q("4.318 mm")))
sketch13.addConstraint(Sketcher.Constraint("DistanceX", -1, 1, 0, 2, Q("734.125 mm")))
sketch13.addConstraint(Sketcher.Constraint("DistanceY", 0, 2, -1, 1, Q("24.4475 mm")))
pocket8 = body.newObject("PartDesign::Pocket", "Pocket007")
pocket8.Profile = sketch13
pocket8.Type = "ThroughAll"

sketch14 = body.newObject("Sketcher::SketchObject", "Sketch013")
sketch14.AttachmentSupport = (doc.getObject("XY_Plane"), [""])
sketch14.MapMode = "FlatFace"
sketch14.addGeometry(Part.LineSegment(App.Vector(778, 18.4, 0), App.Vector(778, 1.4, 0)), False)
sketch14.addGeometry(Part.LineSegment(App.Vector(778, 1.4, 0), App.Vector(779, 1.4, 0)), False)
sketch14.addGeometry(Part.LineSegment(App.Vector(779, 1.4, 0), App.Vector(779, -5.6, 0)), False)
sketch14.addGeometry(Part.LineSegment(App.Vector(779, -5.6, 0), App.Vector(778, -5.6, 0)), False)
sketch14.addGeometry(Part.LineSegment(App.Vector(778, -5.6, 0), App.Vector(778, -13.6, 0)), False)
sketch14.addGeometry(Part.ArcOfCircle(Part.Circle(App.Vector(778, -17.1, 0), App.Vector(0, 0, 1), 3.5), math.radians(90), math.radians(180)), False)
sketch14.addGeometry(Part.LineSegment(App.Vector(774.5, -17.1, 0), App.Vector(724.5, -17.1, 0)), False)
sketch14.addGeometry(Part.ArcOfCircle(Part.Circle(App.Vector(721, -17.1, 0), App.Vector(0, 0, 1), 3.5), math.radians(0), math.radians(90)), False)
sketch14.addGeometry(Part.LineSegment(App.Vector(721, -13.6, 0), App.Vector(721, 18.4, 0)), False)
sketch14.addGeometry(Part.ArcOfCircle(Part.Circle(App.Vector(721, 21.9, 0), App.Vector(0, 0, 1), 3.5), math.radians(-90), math.radians(0)), False)
sketch14.addGeometry(Part.LineSegment(App.Vector(724.5, 21.9, 0), App.Vector(774.5, 21.9, 0)), False)
sketch14.addGeometry(Part.ArcOfCircle(Part.Circle(App.Vector(778, 21.9, 0), App.Vector(0, 0, 1), 3.5), math.radians(-180), math.radians(-90)), False)
sketch14.addConstraint(Sketcher.Constraint("Coincident", 0, 2, 1, 1))
sketch14.addConstraint(Sketcher.Constraint("Coincident", 1, 2, 2, 1))
sketch14.addConstraint(Sketcher.Constraint("Coincident", 2, 2, 3, 1))
sketch14.addConstraint(Sketcher.Constraint("Coincident", 3, 2, 4, 1))
sketch14.addConstraint(Sketcher.Constraint("Coincident", 4, 2, 5, 1))
sketch14.addConstraint(Sketcher.Constraint("Coincident", 5, 2, 6, 1))
sketch14.addConstraint(Sketcher.Constraint("Coincident", 6, 2, 7, 1))
sketch14.addConstraint(Sketcher.Constraint("Coincident", 7, 2, 8, 1))
sketch14.addConstraint(Sketcher.Constraint("Coincident", 8, 2, 9, 1))
sketch14.addConstraint(Sketcher.Constraint("Coincident", 9, 2, 10, 1))
sketch14.addConstraint(Sketcher.Constraint("Coincident", 10, 2, 11, 1))
sketch14.addConstraint(Sketcher.Constraint("Coincident", 11, 2, 0, 1))
sketch14.addConstraint(Sketcher.Constraint("Vertical", 0))
sketch14.addConstraint(Sketcher.Constraint("Horizontal", 1))
sketch14.addConstraint(Sketcher.Constraint("Vertical", 2))
sketch14.addConstraint(Sketcher.Constraint("Horizontal", 3))
sketch14.addConstraint(Sketcher.Constraint("Vertical", 4))
sketch14.addConstraint(Sketcher.Constraint("Horizontal", 6))
sketch14.addConstraint(Sketcher.Constraint("Vertical", 8))
sketch14.addConstraint(Sketcher.Constraint("Horizontal", 10))
sketch14.addConstraint(Sketcher.Constraint("Equal", 5, 7))
sketch14.addConstraint(Sketcher.Constraint("Equal", 7, 9))
sketch14.addConstraint(Sketcher.Constraint("Equal", 9, 11))
sketch14.addConstraint(Sketcher.Constraint("Horizontal", 5, 3, 7, 3))
sketch14.addConstraint(Sketcher.Constraint("Horizontal", 9, 3, 11, 3))
sketch14.addConstraint(Sketcher.Constraint("Horizontal", 7, 3, 5, 2))
sketch14.addConstraint(Sketcher.Constraint("Horizontal", 11, 3, 9, 2))
sketch14.addConstraint(Sketcher.Constraint("Vertical", 7, 3, 9, 3))
sketch14.addConstraint(Sketcher.Constraint("Vertical", 5, 3, 11, 3))
sketch14.addConstraint(Sketcher.Constraint("Vertical", 11, 3, 0, 2))
sketch14.addConstraint(Sketcher.Constraint("Vertical", 0, 2, 3, 2))
sketch14.addConstraint(Sketcher.Constraint("Vertical", 9, 3, 7, 2))
sketch14.addConstraint(Sketcher.Constraint("Radius", 5, Q("3.5 mm")))
sketch14.addConstraint(Sketcher.Constraint("DistanceX", 1, 1, 1, 2, Q("1 mm")))
sketch14.addConstraint(Sketcher.Constraint("DistanceX", 6, 2, 6, 1, Q("50 mm")))
sketch14.addConstraint(Sketcher.Constraint("DistanceY", 0, 2, 0, 1, Q("17 mm")))
sketch14.addConstraint(Sketcher.Constraint("DistanceY", 2, 2, 2, 1, Q("7 mm")))
sketch14.addConstraint(Sketcher.Constraint("DistanceY", 4, 2, 4, 1, Q("8 mm")))
sketch14.addConstraint(Sketcher.Constraint("DistanceX", -1, 1, 5, 3, Q("777.963 mm")))
sketch14.addConstraint(Sketcher.Constraint("DistanceY", 5, 3, -1, 1, Q("17.1295 mm")))
pocket9 = body.newObject("PartDesign::Pocket", "Pocket008")
pocket9.Profile = sketch14
pocket9.Type = "ThroughAll"
pocket9.Reversed = True

sketch15 = body.newObject("Sketcher::SketchObject", "Sketch014")
sketch15.AttachmentSupport = (doc.getObject("XY_Plane"), [""])
sketch15.MapMode = "FlatFace"
sketch15.AttachmentOffset = App.Placement(App.Vector(0, 0, 2), App.Rotation())
add_polygon(sketch15, [(782, 17), (782, -15), (789, -15), (789, 17)])
sketch15.addConstraint(Sketcher.Constraint("Vertical", 0))
sketch15.addConstraint(Sketcher.Constraint("Horizontal", 1))
sketch15.addConstraint(Sketcher.Constraint("Vertical", 2))
sketch15.addConstraint(Sketcher.Constraint("Horizontal", 3))
sketch15.addConstraint(Sketcher.Constraint("DistanceX", 1, 1, 1, 2, Q("7.62 mm")))
sketch15.addConstraint(Sketcher.Constraint("DistanceY", 0, 2, 0, 1, Q("31.75 mm")))
sketch15.addConstraint(Sketcher.Constraint("DistanceX", -1, 1, 0, 2, Q("781.75 mm")))
sketch15.addConstraint(Sketcher.Constraint("DistanceY", 0, 2, -1, 1, Q("14.9225 mm")))
pocket10 = body.newObject("PartDesign::Pocket", "Pocket009")
pocket10.Profile = sketch15
pocket10.Type = "ThroughAll"

sketch16 = body.newObject("Sketcher::SketchObject", "Sketch015")
sketch16.AttachmentSupport = (doc.getObject("XY_Plane"), [""])
sketch16.MapMode = "FlatFace"
sketch16.addGeometry(Part.Circle(App.Vector(711.3, 29.5, 0), App.Vector(0, 0, 1), 1.8), False)
sketch16.addGeometry(Part.Circle(App.Vector(788.7, 29.5, 0), App.Vector(0, 0, 1), 1.8), False)
sketch16.addGeometry(Part.Circle(App.Vector(788.7, -29.5, 0), App.Vector(0, 0, 1), 1.8), False)
sketch16.addGeometry(Part.Circle(App.Vector(711.3, -29.5, 0), App.Vector(0, 0, 1), 1.8), False)
sketch16.addConstraint(Sketcher.Constraint("Equal", 0, 1))
sketch16.addConstraint(Sketcher.Constraint("Equal", 1, 2))
sketch16.addConstraint(Sketcher.Constraint("Equal", 2, 3))
sketch16.addConstraint(Sketcher.Constraint("Symmetric", 1, 3, 2, 3, -1))
sketch16.addConstraint(Sketcher.Constraint("Symmetric", 0, 3, 3, 3, -1))
sketch16.addConstraint(Sketcher.Constraint("Horizontal", 0, 3, 1, 3))
sketch16.addConstraint(Sketcher.Constraint("Diameter", 0, Q("3.6 mm")))
sketch16.addConstraint(Sketcher.Constraint("DistanceX", 0, 3, 1, 3, Q("77.47 mm")))
sketch16.addConstraint(Sketcher.Constraint("DistanceX", -1, 1, 0, 3, Q("711.265 mm")))
sketch16.addConstraint(Sketcher.Constraint("DistanceY", 2, 3, 1, 3, Q("59.055 mm")))
doc.recompute()
hole = body.newObject("PartDesign::Hole", "Hole")
hole.Profile = sketch16
hole.ThreadType = "None"
hole.Diameter = 3.6
hole.DepthType = "Dimension"
hole.Depth = 11
hole.DrillPoint = "Flat"
hole.Reversed = True

sketch17 = body.newObject("Sketcher::SketchObject", "Sketch016")
sketch17.AttachmentSupport = (doc.getObject("XY_Plane"), [""])
sketch17.MapMode = "FlatFace"
sketch17.addGeometry(Part.Circle(App.Vector(721, -17.1, 0), App.Vector(0, 0, 1), 1.8), False)
sketch17.addGeometry(Part.Circle(App.Vector(721, 21.9, 0), App.Vector(0, 0, 1), 1.8), False)
sketch17.addGeometry(Part.Circle(App.Vector(778, 21.9, 0), App.Vector(0, 0, 1), 1.8), False)
sketch17.addGeometry(Part.Circle(App.Vector(778, -17.1, 0), App.Vector(0, 0, 1), 1.8), False)
sketch17.addConstraint(Sketcher.Constraint("Equal", 0, 1))
sketch17.addConstraint(Sketcher.Constraint("Equal", 1, 2))
sketch17.addConstraint(Sketcher.Constraint("Equal", 2, 3))
sketch17.addConstraint(Sketcher.Constraint("Horizontal", 1, 3, 2, 3))
sketch17.addConstraint(Sketcher.Constraint("Horizontal", 0, 3, 3, 3))
sketch17.addConstraint(Sketcher.Constraint("Vertical", 0, 3, 1, 3))
sketch17.addConstraint(Sketcher.Constraint("Vertical", 2, 3, 3, 3))
sketch17.addConstraint(Sketcher.Constraint("Diameter", 0, Q("3.6 mm")))
sketch17.addConstraint(Sketcher.Constraint("DistanceY", 0, 3, 1, 3, Q("39 mm")))
sketch17.addConstraint(Sketcher.Constraint("DistanceX", 1, 3, 2, 3, Q("57 mm")))
sketch17.addConstraint(Sketcher.Constraint("DistanceX", -1, 1, 0, 3, Q("720.963 mm")))
sketch17.addConstraint(Sketcher.Constraint("DistanceY", 0, 3, -1, 1, Q("17.1295 mm")))
doc.recompute()
hole2 = body.newObject("PartDesign::Hole", "Hole001")
hole2.Profile = sketch17
hole2.ThreadType = "None"
hole2.Diameter = 3.6
hole2.DepthType = "Dimension"
hole2.Depth = 11
hole2.DrillPoint = "Flat"
hole2.Reversed = True
doc.recompute()

fillet = body.newObject("PartDesign::Fillet", "Fillet")
fillet.Base = (hole2, edges_at(hole2, [(711.582, -25.082, 7), (707.455, -23.495, 7), (707.455, -25.082, 3.5)]))
fillet.Radius = 0.635
doc.recompute()

fillet2 = body.newObject("PartDesign::Fillet", "Fillet001")
fillet2.Base = (fillet, edges_at(fillet, [
    (797.015, -25.082, 5.617),
    (702.985, 25.082, 5.617),
    (702.985, -25.082, 5.617),
    (797.015, 25.082, 5.617),
]))
fillet2.Radius = 2

doc.recompute()
